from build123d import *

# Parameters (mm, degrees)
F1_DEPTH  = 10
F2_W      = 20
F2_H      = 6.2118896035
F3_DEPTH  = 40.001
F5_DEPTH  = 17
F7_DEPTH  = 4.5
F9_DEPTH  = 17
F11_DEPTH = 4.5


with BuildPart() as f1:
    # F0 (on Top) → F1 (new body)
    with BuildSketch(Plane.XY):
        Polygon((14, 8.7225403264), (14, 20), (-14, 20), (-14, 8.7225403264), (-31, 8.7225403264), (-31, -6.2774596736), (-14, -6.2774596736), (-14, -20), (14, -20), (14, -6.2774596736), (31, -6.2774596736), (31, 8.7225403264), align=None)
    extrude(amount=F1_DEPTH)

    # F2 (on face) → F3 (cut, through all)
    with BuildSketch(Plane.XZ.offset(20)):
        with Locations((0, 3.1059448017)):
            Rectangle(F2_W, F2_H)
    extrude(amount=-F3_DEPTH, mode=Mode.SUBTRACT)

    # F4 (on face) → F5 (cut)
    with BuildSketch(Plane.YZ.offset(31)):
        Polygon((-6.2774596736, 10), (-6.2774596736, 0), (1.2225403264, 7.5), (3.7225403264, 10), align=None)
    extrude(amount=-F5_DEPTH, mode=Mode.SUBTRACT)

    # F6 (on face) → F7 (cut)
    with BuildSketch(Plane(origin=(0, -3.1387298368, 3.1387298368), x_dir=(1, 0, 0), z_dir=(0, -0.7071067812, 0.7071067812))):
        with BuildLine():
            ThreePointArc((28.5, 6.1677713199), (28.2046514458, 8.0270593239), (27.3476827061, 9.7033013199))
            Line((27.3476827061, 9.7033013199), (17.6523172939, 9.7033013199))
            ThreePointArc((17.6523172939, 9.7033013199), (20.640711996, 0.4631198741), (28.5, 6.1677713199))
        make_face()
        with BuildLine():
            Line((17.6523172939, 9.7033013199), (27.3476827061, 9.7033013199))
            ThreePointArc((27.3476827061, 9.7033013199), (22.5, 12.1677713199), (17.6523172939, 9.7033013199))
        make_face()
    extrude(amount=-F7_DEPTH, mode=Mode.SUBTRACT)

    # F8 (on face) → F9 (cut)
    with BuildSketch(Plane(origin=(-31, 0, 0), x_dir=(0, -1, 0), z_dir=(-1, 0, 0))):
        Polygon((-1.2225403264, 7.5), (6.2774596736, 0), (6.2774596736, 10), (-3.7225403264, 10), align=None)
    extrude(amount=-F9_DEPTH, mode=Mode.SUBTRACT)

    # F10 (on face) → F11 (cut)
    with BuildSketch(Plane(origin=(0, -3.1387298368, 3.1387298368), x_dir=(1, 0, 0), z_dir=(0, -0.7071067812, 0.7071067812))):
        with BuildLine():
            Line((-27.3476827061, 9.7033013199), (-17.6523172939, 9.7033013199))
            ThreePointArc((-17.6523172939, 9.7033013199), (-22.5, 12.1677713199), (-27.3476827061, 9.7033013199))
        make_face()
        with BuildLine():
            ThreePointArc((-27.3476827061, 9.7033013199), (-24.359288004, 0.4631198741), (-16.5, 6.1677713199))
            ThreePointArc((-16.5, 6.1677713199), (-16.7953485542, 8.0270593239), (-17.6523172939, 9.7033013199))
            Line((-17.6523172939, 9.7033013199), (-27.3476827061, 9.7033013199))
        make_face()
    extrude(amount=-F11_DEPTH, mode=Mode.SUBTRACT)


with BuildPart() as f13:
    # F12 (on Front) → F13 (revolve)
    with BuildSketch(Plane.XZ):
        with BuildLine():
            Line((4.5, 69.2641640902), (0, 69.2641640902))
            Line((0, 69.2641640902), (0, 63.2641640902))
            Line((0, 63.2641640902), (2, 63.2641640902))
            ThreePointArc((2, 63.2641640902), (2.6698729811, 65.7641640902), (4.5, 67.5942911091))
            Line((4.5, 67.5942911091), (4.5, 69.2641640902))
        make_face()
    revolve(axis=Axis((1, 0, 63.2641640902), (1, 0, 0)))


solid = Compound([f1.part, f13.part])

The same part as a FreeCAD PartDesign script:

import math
import FreeCAD as App
import Part
import Sketcher
Q = App.Units.Quantity


def add_polygon(sketch, points):
    """Adds a closed chain of lines whose ends are joined by coincident constraints."""
    first, n = sketch.GeometryCount, len(points)
    for a, b in zip(points, points[1:] + points[:1]):
        sketch.addGeometry(Part.LineSegment(App.Vector(*a, 0), App.Vector(*b, 0)), False)
    for i in range(n):
        sketch.addConstraint(Sketcher.Constraint("Coincident", first + i, 2, first + (i + 1) % n, 1))

doc = App.newDocument("Part")
body = doc.addObject("PartDesign::Body", "Body")

# Sketch on XY plane
sketch1 = body.newObject("Sketcher::SketchObject", "Sketch")
sketch1.AttachmentSupport = (doc.getObject("XY_Plane"), [""])
sketch1.MapMode = "FlatFace"
add_polygon(sketch1, [(14, 9), (14, 20), (-14, 20), (-14, 9), (-31, 9), (-31, -6), (-14, -6), (-14, -20), (14, -20), (14, -6), (31, -6), (31, 9)])  # lines 0-11
sketch1.addConstraint(Sketcher.Constraint("Vertical", 0))
sketch1.addConstraint(Sketcher.Constraint("Horizontal", 1))
sketch1.addConstraint(Sketcher.Constraint("Vertical", 2))
sketch1.addConstraint(Sketcher.Constraint("Horizontal", 3))
sketch1.addConstraint(Sketcher.Constraint("Vertical", 4))
sketch1.addConstraint(Sketcher.Constraint("Horizontal", 5))
sketch1.addConstraint(Sketcher.Constraint("Vertical", 6))
sketch1.addConstraint(Sketcher.Constraint("Horizontal", 7))
sketch1.addConstraint(Sketcher.Constraint("Vertical", 8))
sketch1.addConstraint(Sketcher.Constraint("Horizontal", 9))
sketch1.addConstraint(Sketcher.Constraint("Vertical", 10))
sketch1.addConstraint(Sketcher.Constraint("Horizontal", 11))
sketch1.addConstraint(Sketcher.Constraint("Symmetric", 0, 2, 6, 2, -1, 1))
sketch1.addConstraint(Sketcher.Constraint("Symmetric", 5, 2, 8, 2, -2))
sketch1.addConstraint(Sketcher.Constraint("Symmetric", 3, 2, 10, 2, -2))
sketch1.addConstraint(Sketcher.Constraint("Vertical", 2, 2, 5, 2))
sketch1.addConstraint(Sketcher.Constraint("DistanceX", 1, 2, 1, 1, Q("28 mm")))
sketch1.addConstraint(Sketcher.Constraint("DistanceX", 3, 2, 3, 1, Q("17 mm")))
sketch1.addConstraint(Sketcher.Constraint("DistanceY", 4, 2, 4, 1, Q("15 mm")))
sketch1.addConstraint(Sketcher.Constraint("DistanceY", -1, 1, 0, 2, Q("20 mm")))
sketch1.addConstraint(Sketcher.Constraint("DistanceY", 0, 1, 0, 2, Q("11.27746 mm")))
pad1 = body.newObject("PartDesign::Pad", "Pad")
pad1.Profile = sketch1
pad1.Length = 10

# Sketch on XZ plane
sketch2 = body.newObject("Sketcher::SketchObject", "Sketch001")
sketch2.AttachmentSupport = (doc.getObject("XZ_Plane"), [""])
sketch2.MapMode = "FlatFace"
sketch2.AttachmentOffset = App.Placement(App.Vector(0, 0, 20), App.Rotation())
add_polygon(sketch2, [(-10, 6), (-10, 0), (10, 0), (10, 6)])  # lines 0-3
sketch2.addConstraint(Sketcher.Constraint("Vertical", 0))
sketch2.addConstraint(Sketcher.Constraint("Horizontal", 1))
sketch2.addConstraint(Sketcher.Constraint("Vertical", 2))
sketch2.addConstraint(Sketcher.Constraint("Horizontal", 3))
sketch2.addConstraint(Sketcher.Constraint("Symmetric", 0, 2, 1, 2, -1, 1))
sketch2.addConstraint(Sketcher.Constraint("DistanceX", 1, 1, 1, 2, Q("20 mm")))
sketch2.addConstraint(Sketcher.Constraint("DistanceY", 0, 2, 0, 1, Q("6.21189 mm")))
pocket1 = body.newObject("PartDesign::Pocket", "Pocket")
pocket1.Profile = sketch2
pocket1.Type = "ThroughAll"

# Sketch on YZ plane
sketch3 = body.newObject("Sketcher::SketchObject", "Sketch002")
sketch3.AttachmentSupport = (doc.getObject("YZ_Plane"), [""])
sketch3.MapMode = "FlatFace"
sketch3.AttachmentOffset = App.Placement(App.Vector(0, 0, 31), App.Rotation())
add_polygon(sketch3, [(-6, 10), (-6, 0), (4, 10)])  # lines 0-2
sketch3.addConstraint(Sketcher.Constraint("Vertical", 0))
sketch3.addConstraint(Sketcher.Constraint("Horizontal", 2))
sketch3.addConstraint(Sketcher.Constraint("PointOnObject", 0, 2, -1))
sketch3.addConstraint(Sketcher.Constraint("Equal", 2, 0))
sketch3.addConstraint(Sketcher.Constraint("DistanceX", 2, 2, 2, 1, Q("10 mm")))
sketch3.addConstraint(Sketcher.Constraint("DistanceX", 0, 2, -1, 1, Q("6.27746 mm")))
pocket2 = body.newObject("PartDesign::Pocket", "Pocket001")
pocket2.Profile = sketch3
pocket2.Length = 17

# Sketch on an angled plane
sketch4 = body.newObject("Sketcher::SketchObject", "Sketch003")
sketch4.Placement = App.Placement(App.Vector(0, -3.13873, 3.13873), App.Rotation(App.Vector(1, 0, 0), App.Vector(0, 0.707106781, 0.707106781), App.Vector(0, -0.707106781, 0.707106781), "ZXY"))
sketch4.addGeometry(Part.ArcOfCircle(Part.Circle(App.Vector(22.5, 6.2, 0), App.Vector(0, 0, 1), 6), math.radians(0), math.radians(36)), False)
sketch4.addGeometry(Part.ArcOfCircle(Part.Circle(App.Vector(22.5, 6.2, 0), App.Vector(0, 0, 1), 6), math.radians(36), math.radians(144)), False)
sketch4.addGeometry(Part.ArcOfCircle(Part.Circle(App.Vector(22.5, 6.2, 0), App.Vector(0, 0, 1), 6), math.radians(144), math.radians(360)), False)
sketch4.addConstraint(Sketcher.Constraint("Tangent", 0, 2, 1, 1))
sketch4.addConstraint(Sketcher.Constraint("Tangent", 1, 2, 2, 1))
sketch4.addConstraint(Sketcher.Constraint("Tangent", 2, 2, 0, 1))
sketch4.addConstraint(Sketcher.Constraint("Horizontal", 0, 2, 1, 2))
sketch4.addConstraint(Sketcher.Constraint("Horizontal", 1, 3, 2, 2))
sketch4.addConstraint(Sketcher.Constraint("Radius", 0, Q("6 mm")))
sketch4.addConstraint(Sketcher.Constraint("DistanceX", -1, 1, 0, 3, Q("22.5 mm")))
sketch4.addConstraint(Sketcher.Constraint("DistanceY", -1, 1, 0, 2, Q("9.703301 mm")))
sketch4.addConstraint(Sketcher.Constraint("DistanceY", -1, 1, 0, 3, Q("6.167771 mm")))
pocket3 = body.newObject("PartDesign::Pocket", "Pocket002")
pocket3.Profile = sketch4
pocket3.Length = 4.5

# Sketch on YZ plane
sketch5 = body.newObject("Sketcher::SketchObject", "Sketch004")
sketch5.AttachmentSupport = (doc.getObject("YZ_Plane"), [""])
sketch5.MapMode = "FlatFace"
sketch5.AttachmentOffset = App.Placement(App.Vector(0, 0, -31), App.Rotation())
add_polygon(sketch5, [(-6, 0), (-6, 10), (4, 10)])  # lines 0-2
sketch5.addConstraint(Sketcher.Constraint("Vertical", 0))
sketch5.addConstraint(Sketcher.Constraint("Horizontal", 1))
sketch5.addConstraint(Sketcher.Constraint("PointOnObject", 2, 2, -1))
sketch5.addConstraint(Sketcher.Constraint("Equal", 1, 0))
sketch5.addConstraint(Sketcher.Constraint("DistanceX", 1, 1, 1, 2, Q("10 mm")))
sketch5.addConstraint(Sketcher.Constraint("DistanceX", 0, 2, -1, 1, Q("6.27746 mm")))
pocket4 = body.newObject("PartDesign::Pocket", "Pocket003")
pocket4.Profile = sketch5
pocket4.Length = 17
pocket4.Reversed = True

# Sketch on an angled plane
sketch6 = body.newObject("Sketcher::SketchObject", "Sketch005")
sketch6.Placement = App.Placement(App.Vector(0, -3.13873, 3.13873), App.Rotation(App.Vector(1, 0, 0), App.Vector(0, 0.707106781, 0.707106781), App.Vector(0, -0.707106781, 0.707106781), "ZXY"))
sketch6.addGeometry(Part.ArcOfCircle(Part.Circle(App.Vector(-22.5, 6.2, 0), App.Vector(0, 0, 1), 6), math.radians(36), math.radians(144)), False)
sketch6.addGeometry(Part.ArcOfCircle(Part.Circle(App.Vector(-22.5, 6.2, 0), App.Vector(0, 0, 1), 6), math.radians(144), math.radians(360)), False)
sketch6.addGeometry(Part.ArcOfCircle(Part.Circle(App.Vector(-22.5, 6.2, 0), App.Vector(0, 0, 1), 6), math.radians(0), math.radians(36)), False)
sketch6.addConstraint(Sketcher.Constraint("Tangent", 0, 2, 1, 1))
sketch6.addConstraint(Sketcher.Constraint("Tangent", 1, 2, 2, 1))
sketch6.addConstraint(Sketcher.Constraint("Tangent", 2, 2, 0, 1))
sketch6.addConstraint(Sketcher.Constraint("Horizontal", 2, 3, 1, 2))
sketch6.addConstraint(Sketcher.Constraint("Horizontal", 0, 2, 2, 2))
sketch6.addConstraint(Sketcher.Constraint("Radius", 0, Q("6 mm")))
sketch6.addConstraint(Sketcher.Constraint("DistanceX", 0, 3, -1, 1, Q("22.5 mm")))
sketch6.addConstraint(Sketcher.Constraint("DistanceY", -1, 1, 0, 2, Q("9.703301 mm")))
sketch6.addConstraint(Sketcher.Constraint("DistanceY", -1, 1, 0, 3, Q("6.167771 mm")))
pocket5 = body.newObject("PartDesign::Pocket", "Pocket004")
pocket5.Profile = sketch6
pocket5.Length = 4.5
body2 = doc.addObject("PartDesign::Body", "Body001")

# Sketch on XZ plane
sketch7 = body2.newObject("Sketcher::SketchObject", "Sketch006")
sketch7.AttachmentSupport = (doc.getObject("XZ_Plane001"), [""])
sketch7.MapMode = "FlatFace"
sketch7.addGeometry(Part.LineSegment(App.Vector(4.5, 69.3, 0), App.Vector(0, 69.3, 0)), False)
sketch7.addGeometry(Part.LineSegment(App.Vector(0, 69.3, 0), App.Vector(0, 63.3, 0)), False)
sketch7.addGeometry(Part.LineSegment(App.Vector(0, 63.3, 0), App.Vector(2, 63.3, 0)), False)
sketch7.addGeometry(Part.ArcOfCircle(Part.Circle(App.Vector(7, 63.3, 0), App.Vector(0, 0, 1), 5), math.radians(120), math.radians(180)), False)
sketch7.addGeometry(Part.LineSegment(App.Vector(4.5, 67.6, 0), App.Vector(4.5, 69.3, 0)), False)
sketch7.addGeometry(Part.LineSegment(App.Vector(0, 63.3, 0), App.Vector(7, 63.3, 0)), True)  # axis
sketch7.addConstraint(Sketcher.Constraint("Coincident", 0, 2, 1, 1))
sketch7.addConstraint(Sketcher.Constraint("Coincident", 1, 2, 2, 1))
sketch7.addConstraint(Sketcher.Constraint("Coincident", 2, 2, 3, 2))
sketch7.addConstraint(Sketcher.Constraint("Coincident", 3, 1, 4, 1))
sketch7.addConstraint(Sketcher.Constraint("Coincident", 4, 2, 0, 1))
sketch7.addConstraint(Sketcher.Constraint("Horizontal", 0))
sketch7.addConstraint(Sketcher.Constraint("Vertical", 1))
sketch7.addConstraint(Sketcher.Constraint("Horizontal", 2))
sketch7.addConstraint(Sketcher.Constraint("Vertical", 4))
sketch7.addConstraint(Sketcher.Constraint("Horizontal", 5))
sketch7.addConstraint(Sketcher.Constraint("Coincident", 5, 1, 1, 2))
sketch7.addConstraint(Sketcher.Constraint("Coincident", 5, 2, 3, 3))
sketch7.addConstraint(Sketcher.Constraint("PointOnObject", 0, 2, -2))
sketch7.addConstraint(Sketcher.Constraint("Radius", 3, Q("5 mm")))
sketch7.addConstraint(Sketcher.Constraint("DistanceX", 2, 1, 2, 2, Q("2 mm")))
sketch7.addConstraint(Sketcher.Constraint("DistanceY", 1, 2, 1, 1, Q("6 mm")))
sketch7.addConstraint(Sketcher.Constraint("DistanceX", 0, 2, 0, 1, Q("4.5 mm")))
sketch7.addConstraint(Sketcher.Constraint("DistanceY", -1, 1, 3, 1, Q("67.594291 mm")))
revolution = body2.newObject("PartDesign::Revolution", "Revolution")
revolution.Profile = sketch7
revolution.ReferenceAxis = (sketch7, ["Axis0"])
revolution.Angle = 360

doc.recompute()
